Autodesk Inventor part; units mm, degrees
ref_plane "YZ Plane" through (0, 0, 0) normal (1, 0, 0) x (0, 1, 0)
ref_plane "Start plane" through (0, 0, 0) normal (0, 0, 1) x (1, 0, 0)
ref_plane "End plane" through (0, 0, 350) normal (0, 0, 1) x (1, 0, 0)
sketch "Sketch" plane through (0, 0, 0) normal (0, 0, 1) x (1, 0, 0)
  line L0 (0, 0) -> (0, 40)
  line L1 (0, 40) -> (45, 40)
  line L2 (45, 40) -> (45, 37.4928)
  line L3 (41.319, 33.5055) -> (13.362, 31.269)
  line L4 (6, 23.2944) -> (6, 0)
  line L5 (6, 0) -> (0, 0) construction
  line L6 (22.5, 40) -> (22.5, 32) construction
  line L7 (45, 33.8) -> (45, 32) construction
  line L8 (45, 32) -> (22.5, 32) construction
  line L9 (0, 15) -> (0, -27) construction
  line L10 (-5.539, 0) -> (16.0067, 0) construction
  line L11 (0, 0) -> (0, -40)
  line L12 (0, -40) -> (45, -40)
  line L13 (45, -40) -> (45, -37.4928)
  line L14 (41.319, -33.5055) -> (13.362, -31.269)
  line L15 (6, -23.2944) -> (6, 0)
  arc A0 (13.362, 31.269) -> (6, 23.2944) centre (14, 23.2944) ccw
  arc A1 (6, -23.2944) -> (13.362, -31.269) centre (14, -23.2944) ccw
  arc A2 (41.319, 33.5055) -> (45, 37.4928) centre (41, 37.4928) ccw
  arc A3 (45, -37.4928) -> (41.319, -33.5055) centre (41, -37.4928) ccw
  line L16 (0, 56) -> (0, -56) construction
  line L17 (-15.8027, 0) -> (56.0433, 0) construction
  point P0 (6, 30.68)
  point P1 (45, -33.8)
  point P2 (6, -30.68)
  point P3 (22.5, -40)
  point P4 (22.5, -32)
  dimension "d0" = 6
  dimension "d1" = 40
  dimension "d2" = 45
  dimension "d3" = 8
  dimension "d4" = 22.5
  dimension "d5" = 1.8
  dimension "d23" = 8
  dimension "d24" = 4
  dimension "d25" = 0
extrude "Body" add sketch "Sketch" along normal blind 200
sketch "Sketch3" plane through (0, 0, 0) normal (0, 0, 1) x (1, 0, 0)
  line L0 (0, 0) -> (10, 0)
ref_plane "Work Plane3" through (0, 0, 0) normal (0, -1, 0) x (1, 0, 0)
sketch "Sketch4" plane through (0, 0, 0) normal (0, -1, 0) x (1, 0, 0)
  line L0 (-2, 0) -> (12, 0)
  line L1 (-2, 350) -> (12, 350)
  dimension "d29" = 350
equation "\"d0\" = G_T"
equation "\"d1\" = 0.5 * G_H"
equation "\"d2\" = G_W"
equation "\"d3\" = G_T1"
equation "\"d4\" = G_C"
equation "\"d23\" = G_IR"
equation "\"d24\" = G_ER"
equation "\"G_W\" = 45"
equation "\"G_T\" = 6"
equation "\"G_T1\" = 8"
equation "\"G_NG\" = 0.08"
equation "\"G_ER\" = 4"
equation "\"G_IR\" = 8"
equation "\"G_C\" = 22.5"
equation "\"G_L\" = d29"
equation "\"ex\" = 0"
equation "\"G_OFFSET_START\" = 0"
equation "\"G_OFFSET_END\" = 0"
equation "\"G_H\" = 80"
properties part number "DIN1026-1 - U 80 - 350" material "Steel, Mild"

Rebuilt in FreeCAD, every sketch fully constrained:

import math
import FreeCAD as App
import Part
import Sketcher

doc = App.newDocument("Part")
body = doc.addObject("PartDesign::Body", "Body")

# Sketch on XY plane
sketch1 = body.newObject("Sketcher::SketchObject", "Sketch")
sketch1.AttachmentSupport = (doc.getObject("XY_Plane"), [""])
sketch1.MapMode = "FlatFace"
sketch1.addGeometry([
    Part.LineSegment(App.Vector(0, 40, 0), App.Vector(0, -40, 0)),  # 0
    Part.LineSegment(App.Vector(0, -40, 0), App.Vector(45, -40, 0)),  # 1
    Part.LineSegment(App.Vector(45, -40, 0), App.Vector(45, -37.4928, 0)),  # 2
    Part.ArcOfCircle(Part.Circle(App.Vector(41, -37.4928, 0), App.Vector(0, 0, 1), 4), math.radians(0), math.radians(85.42585)),  # 3
    Part.LineSegment(App.Vector(41.319, -33.5055, 0), App.Vector(13.362, -31.269, 0)),  # 4
    Part.ArcOfCircle(Part.Circle(App.Vector(14, -23.2944, 0), App.Vector(0, 0, 1), 8), math.radians(180), math.radians(265.42585)),  # 5
    Part.LineSegment(App.Vector(6, -23.2944, 0), App.Vector(6, 23.2944, 0)),  # 6
    Part.ArcOfCircle(Part.Circle(App.Vector(14, 23.2944, 0), App.Vector(0, 0, 1), 8.000081), math.radians(94.57415), math.radians(180)),  # 7
    Part.LineSegment(App.Vector(13.362, 31.269, 0), App.Vector(41.319, 33.5055, 0)),  # 8
    Part.ArcOfCircle(Part.Circle(App.Vector(41, 37.4928, 0), App.Vector(0, 0, 1), 4.00004), math.radians(-85.42585), math.radians(0)),  # 9
    Part.LineSegment(App.Vector(45, 37.4928, 0), App.Vector(45, 40, 0)),  # 10
    Part.LineSegment(App.Vector(45, 40, 0), App.Vector(0, 40, 0)),  # 11
], False)
sketch1.addConstraint([
    Sketcher.Constraint("Coincident", 0, 2, 1, 1),
    Sketcher.Constraint("Coincident", 1, 2, 2, 1),
    Sketcher.Constraint("Tangent", 2, 2, 3, 1),
    Sketcher.Constraint("Tangent", 3, 2, 4, 1),
    Sketcher.Constraint("Tangent", 4, 2, 5, 2),
    Sketcher.Constraint("Tangent", 5, 1, 6, 1),
    Sketcher.Constraint("Tangent", 6, 2, 7, 2),
    Sketcher.Constraint("Tangent", 7, 1, 8, 1),
    Sketcher.Constraint("Tangent", 8, 2, 9, 1),
    Sketcher.Constraint("Tangent", 9, 2, 10, 1),
    Sketcher.Constraint("Coincident", 10, 2, 11, 1),
    Sketcher.Constraint("Coincident", 11, 2, 0, 1),
    Sketcher.Constraint("Vertical", 0),
    Sketcher.Constraint("Horizontal", 1),
    Sketcher.Constraint("Vertical", 2),
    Sketcher.Constraint("Vertical", 6),
    Sketcher.Constraint("Vertical", 10),
    Sketcher.Constraint("Horizontal", 11),
    Sketcher.Constraint("Equal", 5, 7),
    Sketcher.Constraint("Equal", 3, 9),
    Sketcher.Constraint("Symmetric", 0, 2, 11, 2, -1, 1),
    Sketcher.Constraint("Symmetric", 3, 3, 9, 3, -1),
    Sketcher.Constraint("Vertical", 4, 2, 7, 1),
    Sketcher.Constraint("Radius", 3, 4.0),
    Sketcher.Constraint("Radius", 5, 8.0),
    Sketcher.Constraint("DistanceX", 1, 1, 1, 2, 45.0),
    Sketcher.Constraint("DistanceY", 0, 2, -1, 1, 40.0),
    Sketcher.Constraint("DistanceX", -1, 1, 5, 1, 6.0),
    Sketcher.Constraint("DistanceY", 5, 3, 8, 2, 56.8),
    Sketcher.Constraint("DistanceY", 2, 1, 2, 2, 2.5072),
])
pad1 = body.newObject("PartDesign::Pad", "Pad")
pad1.Profile = sketch1
pad1.Length = 200

doc.recompute()
